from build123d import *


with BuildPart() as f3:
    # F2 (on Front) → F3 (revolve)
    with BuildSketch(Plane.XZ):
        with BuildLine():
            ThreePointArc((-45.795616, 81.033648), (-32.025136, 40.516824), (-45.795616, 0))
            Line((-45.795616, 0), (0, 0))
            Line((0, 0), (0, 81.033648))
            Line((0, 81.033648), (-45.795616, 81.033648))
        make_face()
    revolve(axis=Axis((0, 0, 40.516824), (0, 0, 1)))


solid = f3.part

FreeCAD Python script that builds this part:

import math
import FreeCAD as App
import Part
import Sketcher

doc = App.newDocument("Part")
body = doc.addObject("PartDesign::Body", "Body")

# Sketch on XZ plane
sketch1 = body.newObject("Sketcher::SketchObject", "Sketch")
sketch1.AttachmentSupport = (doc.getObject("XZ_Plane"), [""])
sketch1.MapMode = "FlatFace"
sketch1.addGeometry([
    Part.ArcOfCircle(Part.Circle(App.Vector(-99, 41, 0), App.Vector(0, 0, 1), 66), math.radians(-38), math.radians(38)),
    Part.LineSegment(App.Vector(-46, 0, 0), App.Vector(0, 0, 0)),
    Part.LineSegment(App.Vector(0, 0, 0), App.Vector(0, 81, 0)),
    Part.LineSegment(App.Vector(0, 81, 0), App.Vector(-46, 81, 0)),
], False)
sketch1.addConstraint([
    Sketcher.Constraint("Coincident", 0, 1, 1, 1),
    Sketcher.Constraint("Coincident", 1, 2, 2, 1),
    Sketcher.Constraint("Coincident", 2, 2, 3, 1),
    Sketcher.Constraint("Coincident", 3, 2, 0, 2),
    Sketcher.Constraint("Horizontal", 1),
    Sketcher.Constraint("Vertical", 2),
    Sketcher.Constraint("Horizontal", 3),
    Sketcher.Constraint("Coincident", 1, 2, -1, 1),
    Sketcher.Constraint("Vertical", 0, 1, 3, 2),
    Sketcher.Constraint("Radius", 0, 66.491478),
    Sketcher.Constraint("DistanceX", 0, 3, 0, 1, 52.720998),
    Sketcher.Constraint("DistanceX", 1, 1, 1, 2, 45.795616),
])
revolution = body.newObject("PartDesign::Revolution", "Revolution")
revolution.Profile = sketch1
revolution.ReferenceAxis = (sketch1, ["V_Axis"])
revolution.Angle = 360

doc.recompute()
